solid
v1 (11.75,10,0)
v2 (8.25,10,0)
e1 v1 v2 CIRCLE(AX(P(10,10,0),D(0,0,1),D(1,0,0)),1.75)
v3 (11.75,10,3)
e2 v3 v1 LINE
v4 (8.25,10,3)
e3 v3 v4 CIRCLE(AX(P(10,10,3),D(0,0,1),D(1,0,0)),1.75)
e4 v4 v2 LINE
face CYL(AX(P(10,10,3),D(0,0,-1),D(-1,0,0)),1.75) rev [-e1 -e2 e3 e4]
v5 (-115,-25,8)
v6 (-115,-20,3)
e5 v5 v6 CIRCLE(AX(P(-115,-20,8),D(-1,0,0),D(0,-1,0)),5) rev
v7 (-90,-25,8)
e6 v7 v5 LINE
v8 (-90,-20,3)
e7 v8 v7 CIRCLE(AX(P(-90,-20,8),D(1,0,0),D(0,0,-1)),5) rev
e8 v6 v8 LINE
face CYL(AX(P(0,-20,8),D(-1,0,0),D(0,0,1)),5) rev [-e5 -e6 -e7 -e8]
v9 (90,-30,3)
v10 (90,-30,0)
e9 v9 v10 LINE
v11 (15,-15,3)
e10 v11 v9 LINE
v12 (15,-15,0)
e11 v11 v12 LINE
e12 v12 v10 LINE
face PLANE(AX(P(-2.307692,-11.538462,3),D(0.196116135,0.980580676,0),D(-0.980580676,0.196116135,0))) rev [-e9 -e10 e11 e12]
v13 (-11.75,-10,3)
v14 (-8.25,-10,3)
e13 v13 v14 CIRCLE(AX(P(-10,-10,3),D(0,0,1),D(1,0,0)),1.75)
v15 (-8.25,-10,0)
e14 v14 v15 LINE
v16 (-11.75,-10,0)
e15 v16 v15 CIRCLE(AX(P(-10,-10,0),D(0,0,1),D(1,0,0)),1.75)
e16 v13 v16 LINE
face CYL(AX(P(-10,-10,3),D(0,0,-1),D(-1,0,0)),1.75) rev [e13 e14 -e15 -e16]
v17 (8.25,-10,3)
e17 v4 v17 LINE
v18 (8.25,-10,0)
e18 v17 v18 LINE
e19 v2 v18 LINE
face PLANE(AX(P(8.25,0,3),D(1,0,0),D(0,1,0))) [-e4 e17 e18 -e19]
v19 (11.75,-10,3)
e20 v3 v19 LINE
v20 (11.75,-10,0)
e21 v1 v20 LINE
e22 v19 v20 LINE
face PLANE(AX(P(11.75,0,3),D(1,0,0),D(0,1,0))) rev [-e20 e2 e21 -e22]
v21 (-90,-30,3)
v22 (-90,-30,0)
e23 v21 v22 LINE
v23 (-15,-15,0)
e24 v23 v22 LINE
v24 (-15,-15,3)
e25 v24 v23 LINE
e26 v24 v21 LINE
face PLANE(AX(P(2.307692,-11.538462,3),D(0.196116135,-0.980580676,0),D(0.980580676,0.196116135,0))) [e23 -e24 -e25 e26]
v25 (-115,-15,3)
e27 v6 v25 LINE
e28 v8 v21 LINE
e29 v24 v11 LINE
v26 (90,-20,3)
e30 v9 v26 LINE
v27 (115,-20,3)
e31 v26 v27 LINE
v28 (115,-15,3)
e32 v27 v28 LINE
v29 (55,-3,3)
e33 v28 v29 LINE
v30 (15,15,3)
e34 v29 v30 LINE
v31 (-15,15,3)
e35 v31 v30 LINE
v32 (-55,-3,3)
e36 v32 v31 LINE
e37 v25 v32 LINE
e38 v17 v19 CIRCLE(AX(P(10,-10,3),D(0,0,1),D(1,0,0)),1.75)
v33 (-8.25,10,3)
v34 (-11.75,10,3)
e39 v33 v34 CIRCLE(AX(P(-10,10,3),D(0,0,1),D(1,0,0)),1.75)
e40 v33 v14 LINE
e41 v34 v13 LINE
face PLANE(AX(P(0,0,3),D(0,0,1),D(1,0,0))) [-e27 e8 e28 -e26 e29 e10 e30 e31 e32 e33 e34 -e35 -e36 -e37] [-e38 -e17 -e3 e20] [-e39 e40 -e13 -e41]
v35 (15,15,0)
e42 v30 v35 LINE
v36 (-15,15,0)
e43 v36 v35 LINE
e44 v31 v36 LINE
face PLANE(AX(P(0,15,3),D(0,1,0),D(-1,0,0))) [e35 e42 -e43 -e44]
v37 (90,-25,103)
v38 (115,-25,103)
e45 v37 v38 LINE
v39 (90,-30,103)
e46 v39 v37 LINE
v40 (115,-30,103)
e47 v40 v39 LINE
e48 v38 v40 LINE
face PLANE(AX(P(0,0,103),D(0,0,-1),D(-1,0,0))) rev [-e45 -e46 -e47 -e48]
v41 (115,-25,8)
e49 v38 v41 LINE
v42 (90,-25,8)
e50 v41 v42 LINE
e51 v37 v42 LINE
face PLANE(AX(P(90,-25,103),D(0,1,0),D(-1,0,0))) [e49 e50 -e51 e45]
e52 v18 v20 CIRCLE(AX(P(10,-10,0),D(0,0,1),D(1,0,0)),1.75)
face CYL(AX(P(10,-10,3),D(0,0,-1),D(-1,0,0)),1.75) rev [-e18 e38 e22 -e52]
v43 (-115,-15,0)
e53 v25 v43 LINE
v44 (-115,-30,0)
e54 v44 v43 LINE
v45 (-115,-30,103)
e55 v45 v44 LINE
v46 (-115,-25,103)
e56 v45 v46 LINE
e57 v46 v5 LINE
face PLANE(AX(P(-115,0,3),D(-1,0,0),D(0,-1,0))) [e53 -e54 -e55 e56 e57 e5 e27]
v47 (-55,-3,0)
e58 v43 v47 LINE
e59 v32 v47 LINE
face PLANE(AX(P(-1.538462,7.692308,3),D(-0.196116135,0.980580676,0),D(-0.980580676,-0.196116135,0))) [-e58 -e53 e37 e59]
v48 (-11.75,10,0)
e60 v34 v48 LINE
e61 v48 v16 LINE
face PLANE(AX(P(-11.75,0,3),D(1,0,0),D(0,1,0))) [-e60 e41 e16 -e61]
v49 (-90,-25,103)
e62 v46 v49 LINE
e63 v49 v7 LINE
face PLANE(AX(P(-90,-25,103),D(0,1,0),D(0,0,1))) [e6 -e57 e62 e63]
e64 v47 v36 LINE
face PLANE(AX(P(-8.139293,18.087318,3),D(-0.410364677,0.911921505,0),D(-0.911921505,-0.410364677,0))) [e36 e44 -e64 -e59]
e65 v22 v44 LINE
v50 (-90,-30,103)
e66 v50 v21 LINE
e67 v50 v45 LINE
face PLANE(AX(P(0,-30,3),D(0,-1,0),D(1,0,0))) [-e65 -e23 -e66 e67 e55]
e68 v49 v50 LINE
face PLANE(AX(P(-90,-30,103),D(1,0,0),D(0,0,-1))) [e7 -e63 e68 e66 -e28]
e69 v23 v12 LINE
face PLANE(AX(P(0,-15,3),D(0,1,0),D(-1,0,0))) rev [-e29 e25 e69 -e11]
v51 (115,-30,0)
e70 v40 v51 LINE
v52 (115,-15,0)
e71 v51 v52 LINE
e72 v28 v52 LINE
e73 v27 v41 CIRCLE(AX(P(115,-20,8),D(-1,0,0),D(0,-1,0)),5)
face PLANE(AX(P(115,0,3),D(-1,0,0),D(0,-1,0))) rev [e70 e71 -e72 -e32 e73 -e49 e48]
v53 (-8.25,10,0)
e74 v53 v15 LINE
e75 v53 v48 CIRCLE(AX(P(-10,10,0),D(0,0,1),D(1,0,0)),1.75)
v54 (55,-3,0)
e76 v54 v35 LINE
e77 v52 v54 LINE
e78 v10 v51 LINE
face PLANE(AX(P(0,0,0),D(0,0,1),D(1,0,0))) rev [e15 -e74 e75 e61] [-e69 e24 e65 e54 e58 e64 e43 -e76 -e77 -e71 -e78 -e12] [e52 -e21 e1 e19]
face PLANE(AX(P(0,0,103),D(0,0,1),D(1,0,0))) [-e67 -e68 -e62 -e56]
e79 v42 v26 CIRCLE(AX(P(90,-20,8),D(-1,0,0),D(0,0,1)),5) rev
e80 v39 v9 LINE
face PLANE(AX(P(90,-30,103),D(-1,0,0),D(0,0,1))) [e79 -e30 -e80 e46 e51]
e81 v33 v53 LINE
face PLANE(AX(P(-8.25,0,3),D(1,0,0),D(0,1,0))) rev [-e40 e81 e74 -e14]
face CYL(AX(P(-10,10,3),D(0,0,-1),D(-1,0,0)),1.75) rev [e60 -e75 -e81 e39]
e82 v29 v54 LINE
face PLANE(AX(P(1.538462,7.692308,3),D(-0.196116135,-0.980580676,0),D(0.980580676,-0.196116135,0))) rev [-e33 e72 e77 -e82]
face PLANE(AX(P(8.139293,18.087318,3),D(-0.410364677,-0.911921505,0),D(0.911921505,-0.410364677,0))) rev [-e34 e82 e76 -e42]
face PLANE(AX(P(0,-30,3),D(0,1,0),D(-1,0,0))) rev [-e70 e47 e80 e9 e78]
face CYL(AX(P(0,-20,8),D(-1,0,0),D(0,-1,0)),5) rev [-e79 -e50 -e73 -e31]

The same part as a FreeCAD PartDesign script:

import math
import FreeCAD as App
import Part
import Sketcher


def edges_at(feature, points):
    """Names of the edges that pass closest to the given points."""
    edges = feature.Shape.Edges
    near = lambda p: min(range(len(edges)), key=lambda i: edges[i].distToShape(Part.Vertex(*p))[0])
    return sorted({f"Edge{near(p) + 1}" for p in points})

doc = App.newDocument("Part")
body = doc.addObject("PartDesign::Body", "Body")

# Sketch on XY plane
sketch1 = body.newObject("Sketcher::SketchObject", "Sketch")
sketch1.AttachmentSupport = (doc.getObject("XY_Plane"), [""])
sketch1.MapMode = "FlatFace"
sketch1.addGeometry(Part.LineSegment(App.Vector(-15, -15, 0), App.Vector(15, -15, 0)), False)
sketch1.addGeometry(Part.LineSegment(App.Vector(15, -15, 0), App.Vector(90, -30, 0)), False)
sketch1.addGeometry(Part.LineSegment(App.Vector(90, -30, 0), App.Vector(115, -30, 0)), False)
sketch1.addGeometry(Part.LineSegment(App.Vector(115, -30, 0), App.Vector(115, -15, 0)), False)
sketch1.addGeometry(Part.LineSegment(App.Vector(115, -15, 0), App.Vector(55, -3, 0)), False)
sketch1.addGeometry(Part.LineSegment(App.Vector(55, -3, 0), App.Vector(15, 15, 0)), False)
sketch1.addGeometry(Part.LineSegment(App.Vector(15, 15, 0), App.Vector(-15, 15, 0)), False)
sketch1.addGeometry(Part.LineSegment(App.Vector(-15, 15, 0), App.Vector(-55, -3, 0)), False)
sketch1.addGeometry(Part.LineSegment(App.Vector(-55, -3, 0), App.Vector(-115, -15, 0)), False)
sketch1.addGeometry(Part.LineSegment(App.Vector(-115, -15, 0), App.Vector(-115, -30, 0)), False)
sketch1.addGeometry(Part.LineSegment(App.Vector(-115, -30, 0), App.Vector(-90, -30, 0)), False)
sketch1.addGeometry(Part.LineSegment(App.Vector(-90, -30, 0), App.Vector(-15, -15, 0)), False)
sketch1.addGeometry(Part.ArcOfCircle(Part.Circle(App.Vector(-10, -10, 0), App.Vector(0, 0, 1), 1.8), math.radians(180), math.radians(360)), False)
sketch1.addGeometry(Part.LineSegment(App.Vector(-11.8, -10, 0), App.Vector(-11.8, 10, 0)), False)
sketch1.addGeometry(Part.ArcOfCircle(Part.Circle(App.Vector(-10, 10, 0), App.Vector(0, 0, 1), 1.8), math.radians(0), math.radians(180)), False)
sketch1.addGeometry(Part.LineSegment(App.Vector(-8.2, 10, 0), App.Vector(-8.2, -10, 0)), False)
sketch1.addGeometry(Part.LineSegment(App.Vector(8.2, -10, 0), App.Vector(8.2, 10, 0)), False)
sketch1.addGeometry(Part.ArcOfCircle(Part.Circle(App.Vector(10, 10, 0), App.Vector(0, 0, 1), 1.8), math.radians(0), math.radians(180)), False)
sketch1.addGeometry(Part.LineSegment(App.Vector(11.8, 10, 0), App.Vector(11.8, -10, 0)), False)
sketch1.addGeometry(Part.ArcOfCircle(Part.Circle(App.Vector(10, -10, 0), App.Vector(0, 0, 1), 1.8), math.radians(180), math.radians(360)), False)
sketch1.addConstraint(Sketcher.Constraint("Coincident", 0, 2, 1, 1))
sketch1.addConstraint(Sketcher.Constraint("Coincident", 1, 2, 2, 1))
sketch1.addConstraint(Sketcher.Constraint("Coincident", 2, 2, 3, 1))
sketch1.addConstraint(Sketcher.Constraint("Coincident", 3, 2, 4, 1))
sketch1.addConstraint(Sketcher.Constraint("Coincident", 4, 2, 5, 1))
sketch1.addConstraint(Sketcher.Constraint("Coincident", 5, 2, 6, 1))
sketch1.addConstraint(Sketcher.Constraint("Coincident", 6, 2, 7, 1))
sketch1.addConstraint(Sketcher.Constraint("Coincident", 7, 2, 8, 1))
sketch1.addConstraint(Sketcher.Constraint("Coincident", 8, 2, 9, 1))
sketch1.addConstraint(Sketcher.Constraint("Coincident", 9, 2, 10, 1))
sketch1.addConstraint(Sketcher.Constraint("Coincident", 10, 2, 11, 1))
sketch1.addConstraint(Sketcher.Constraint("Coincident", 11, 2, 0, 1))
sketch1.addConstraint(Sketcher.Constraint("Tangent", 12, 1, 13, 1))
sketch1.addConstraint(Sketcher.Constraint("Tangent", 13, 2, 14, 2))
sketch1.addConstraint(Sketcher.Constraint("Tangent", 14, 1, 15, 1))
sketch1.addConstraint(Sketcher.Constraint("Tangent", 15, 2, 12, 2))
sketch1.addConstraint(Sketcher.Constraint("Tangent", 16, 2, 17, 2))
sketch1.addConstraint(Sketcher.Constraint("Tangent", 17, 1, 18, 1))
sketch1.addConstraint(Sketcher.Constraint("Tangent", 18, 2, 19, 2))
sketch1.addConstraint(Sketcher.Constraint("Tangent", 19, 1, 16, 1))
sketch1.addConstraint(Sketcher.Constraint("Horizontal", 0))
sketch1.addConstraint(Sketcher.Constraint("Horizontal", 2))
sketch1.addConstraint(Sketcher.Constraint("Vertical", 3))
sketch1.addConstraint(Sketcher.Constraint("Horizontal", 6))
sketch1.addConstraint(Sketcher.Constraint("Vertical", 9))
sketch1.addConstraint(Sketcher.Constraint("Horizontal", 10))
sketch1.addConstraint(Sketcher.Constraint("Vertical", 13))
sketch1.addConstraint(Sketcher.Constraint("Vertical", 15))
sketch1.addConstraint(Sketcher.Constraint("Vertical", 16))
sketch1.addConstraint(Sketcher.Constraint("Vertical", 18))
sketch1.addConstraint(Sketcher.Constraint("Equal", 14, 17))
sketch1.addConstraint(Sketcher.Constraint("Symmetric", 12, 3, 17, 3, -1, 1))
sketch1.addConstraint(Sketcher.Constraint("Symmetric", 0, 2, 6, 2, -1, 1))
sketch1.addConstraint(Sketcher.Constraint("Symmetric", 4, 2, 7, 2, -2))
sketch1.addConstraint(Sketcher.Constraint("Symmetric", 3, 2, 8, 2, -2))
sketch1.addConstraint(Sketcher.Constraint("Symmetric", 1, 2, 10, 2, -2))
sketch1.addConstraint(Sketcher.Constraint("Parallel", 1, 4))
sketch1.addConstraint(Sketcher.Constraint("Parallel", 8, 11))
sketch1.addConstraint(Sketcher.Constraint("Horizontal", 14, 3, 17, 3))
sketch1.addConstraint(Sketcher.Constraint("Horizontal", 12, 3, 19, 3))
sketch1.addConstraint(Sketcher.Constraint("Horizontal", 0, 2, 3, 2))
sketch1.addConstraint(Sketcher.Constraint("Vertical", 0, 2, 5, 2))
sketch1.addConstraint(Sketcher.Constraint("DistanceX", 0, 1, 0, 2, 30.0))
sketch1.addConstraint(Sketcher.Constraint("DistanceX", 2, 1, 2, 2, 25.0))
sketch1.addConstraint(Sketcher.Constraint("DistanceY", 3, 1, 3, 2, 15.0))
sketch1.addConstraint(Sketcher.Constraint("DistanceY", 13, 1, 13, 2, 20.0))
sketch1.addConstraint(Sketcher.Constraint("Radius", 12, 1.75))
sketch1.addConstraint(Sketcher.Constraint("DistanceX", 12, 3, -1, 1, 10.0))
sketch1.addConstraint(Sketcher.Constraint("DistanceY", 0, 2, -1, 1, 15.0))
sketch1.addConstraint(Sketcher.Constraint("DistanceX", -1, 1, 1, 2, 90.0))
sketch1.addConstraint(Sketcher.Constraint("DistanceX", -1, 1, 4, 2, 55.0))
pad1 = body.newObject("PartDesign::Pad", "Pad")
pad1.Profile = sketch1
pad1.Length = 3

# Sketch on XY plane
sketch2 = body.newObject("Sketcher::SketchObject", "Sketch001")
sketch2.AttachmentSupport = (doc.getObject("XY_Plane"), [""])
sketch2.MapMode = "FlatFace"
sketch2.AttachmentOffset = App.Placement(App.Vector(0, 0, 3), App.Rotation())
sketch2.addGeometry(Part.LineSegment(App.Vector(115, -25, 0), App.Vector(115, -30, 0)), False)
sketch2.addGeometry(Part.LineSegment(App.Vector(115, -30, 0), App.Vector(90, -30, 0)), False)
sketch2.addGeometry(Part.LineSegment(App.Vector(90, -30, 0), App.Vector(90, -25, 0)), False)
sketch2.addGeometry(Part.LineSegment(App.Vector(90, -25, 0), App.Vector(115, -25, 0)), False)
sketch2.addGeometry(Part.LineSegment(App.Vector(-90, -25, 0), App.Vector(-90, -30, 0)), False)
sketch2.addGeometry(Part.LineSegment(App.Vector(-90, -30, 0), App.Vector(-115, -30, 0)), False)
sketch2.addGeometry(Part.LineSegment(App.Vector(-115, -30, 0), App.Vector(-115, -25, 0)), False)
sketch2.addGeometry(Part.LineSegment(App.Vector(-115, -25, 0), App.Vector(-90, -25, 0)), False)
sketch2.addConstraint(Sketcher.Constraint("Coincident", 0, 2, 1, 1))
sketch2.addConstraint(Sketcher.Constraint("Coincident", 1, 2, 2, 1))
sketch2.addConstraint(Sketcher.Constraint("Coincident", 2, 2, 3, 1))
sketch2.addConstraint(Sketcher.Constraint("Coincident", 3, 2, 0, 1))
sketch2.addConstraint(Sketcher.Constraint("Coincident", 4, 2, 5, 1))
sketch2.addConstraint(Sketcher.Constraint("Coincident", 5, 2, 6, 1))
sketch2.addConstraint(Sketcher.Constraint("Coincident", 6, 2, 7, 1))
sketch2.addConstraint(Sketcher.Constraint("Coincident", 7, 2, 4, 1))
sketch2.addConstraint(Sketcher.Constraint("Vertical", 0))
sketch2.addConstraint(Sketcher.Constraint("Horizontal", 1))
sketch2.addConstraint(Sketcher.Constraint("Vertical", 2))
sketch2.addConstraint(Sketcher.Constraint("Horizontal", 3))
sketch2.addConstraint(Sketcher.Constraint("Vertical", 4))
sketch2.addConstraint(Sketcher.Constraint("Horizontal", 5))
sketch2.addConstraint(Sketcher.Constraint("Vertical", 6))
sketch2.addConstraint(Sketcher.Constraint("Horizontal", 7))
sketch2.addConstraint(Sketcher.Constraint("Symmetric", 1, 2, 4, 2, -2))
sketch2.addConstraint(Sketcher.Constraint("Symmetric", 3, 2, 6, 2, -2))
sketch2.addConstraint(Sketcher.Constraint("DistanceX", 1, 2, 1, 1, 25.0))
sketch2.addConstraint(Sketcher.Constraint("DistanceY", 0, 2, 0, 1, 5.0))
sketch2.addConstraint(Sketcher.Constraint("DistanceX", -1, 1, 0, 2, 115.0))
sketch2.addConstraint(Sketcher.Constraint("DistanceY", 0, 2, -1, 1, 30.0))
pad2 = body.newObject("PartDesign::Pad", "Pad001")
pad2.Profile = sketch2
pad2.Length = 100
doc.recompute()

fillet = body.newObject("PartDesign::Fillet", "Fillet")
fillet.Base = (pad2, edges_at(pad2, [(102.5, -25, 3), (-102.5, -25, 3)]))
fillet.Radius = 5

doc.recompute()
